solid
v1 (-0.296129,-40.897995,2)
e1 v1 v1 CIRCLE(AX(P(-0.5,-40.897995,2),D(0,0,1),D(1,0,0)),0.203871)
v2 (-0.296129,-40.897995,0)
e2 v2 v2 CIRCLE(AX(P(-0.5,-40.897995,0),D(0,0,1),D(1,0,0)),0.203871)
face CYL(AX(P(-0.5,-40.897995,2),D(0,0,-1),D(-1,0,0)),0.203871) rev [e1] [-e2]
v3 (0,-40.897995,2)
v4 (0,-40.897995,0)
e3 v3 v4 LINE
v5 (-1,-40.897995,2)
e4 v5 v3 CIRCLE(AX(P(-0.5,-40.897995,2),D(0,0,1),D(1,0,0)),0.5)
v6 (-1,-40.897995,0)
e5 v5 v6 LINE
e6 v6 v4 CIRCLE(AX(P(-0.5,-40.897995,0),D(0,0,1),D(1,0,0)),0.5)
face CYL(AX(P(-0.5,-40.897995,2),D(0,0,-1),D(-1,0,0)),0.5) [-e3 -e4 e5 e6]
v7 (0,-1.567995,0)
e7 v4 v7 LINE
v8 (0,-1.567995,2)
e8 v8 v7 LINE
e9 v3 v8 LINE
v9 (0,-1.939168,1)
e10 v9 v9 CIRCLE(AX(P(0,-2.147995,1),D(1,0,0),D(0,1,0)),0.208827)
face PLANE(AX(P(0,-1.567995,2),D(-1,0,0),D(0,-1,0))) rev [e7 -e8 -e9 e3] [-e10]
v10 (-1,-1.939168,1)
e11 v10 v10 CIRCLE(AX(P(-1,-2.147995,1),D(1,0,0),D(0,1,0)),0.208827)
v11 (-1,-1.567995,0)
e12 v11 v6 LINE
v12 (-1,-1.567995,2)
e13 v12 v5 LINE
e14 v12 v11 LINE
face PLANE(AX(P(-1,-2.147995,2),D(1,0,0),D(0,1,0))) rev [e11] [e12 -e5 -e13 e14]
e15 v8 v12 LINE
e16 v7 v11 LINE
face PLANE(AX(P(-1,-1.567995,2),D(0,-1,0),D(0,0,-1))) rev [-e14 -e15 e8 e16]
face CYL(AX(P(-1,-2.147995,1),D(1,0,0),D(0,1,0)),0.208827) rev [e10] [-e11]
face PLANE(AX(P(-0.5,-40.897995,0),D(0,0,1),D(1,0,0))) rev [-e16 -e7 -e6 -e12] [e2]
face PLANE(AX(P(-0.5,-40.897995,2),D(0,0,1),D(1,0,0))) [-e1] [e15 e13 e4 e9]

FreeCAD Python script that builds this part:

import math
import FreeCAD as App
import Part
import Sketcher

doc = App.newDocument("Part")
body = doc.addObject("PartDesign::Body", "Body")

sketch1 = doc.addObject("Sketcher::SketchObject", "Sketch")
body.addObject(sketch1)
sketch1.AttachmentSupport = (doc.XY_Plane, [""])
sketch1.MapMode = "FlatFace"
sketch1.addGeometry(Part.ArcOfCircle(Part.Circle(App.Vector(-0.5, -40.9, 0), App.Vector(0, 0, 1), 0.5), math.radians(180), math.radians(360)), False)
sketch1.addGeometry(Part.LineSegment(App.Vector(0, -40.9, 0), App.Vector(0, -1.57, 0)), False)
sketch1.addGeometry(Part.LineSegment(App.Vector(0, -1.57, 0), App.Vector(-1, -1.57, 0)), False)
sketch1.addGeometry(Part.LineSegment(App.Vector(-1, -1.57, 0), App.Vector(-1, -40.9, 0)), False)
sketch1.addGeometry(Part.Circle(App.Vector(-0.5, -40.9, 0), App.Vector(0, 0, 1), 0.2), False)
sketch1.addConstraint(Sketcher.Constraint("Tangent", 0, 2, 1, 1))
sketch1.addConstraint(Sketcher.Constraint("Coincident", 1, 2, 2, 1))
sketch1.addConstraint(Sketcher.Constraint("Coincident", 2, 2, 3, 1))
sketch1.addConstraint(Sketcher.Constraint("Tangent", 3, 2, 0, 1))
sketch1.addConstraint(Sketcher.Constraint("Vertical", 1))
sketch1.addConstraint(Sketcher.Constraint("Horizontal", 2))
sketch1.addConstraint(Sketcher.Constraint("Vertical", 3))
sketch1.addConstraint(Sketcher.Constraint("Coincident", 4, 3, 0, 3))
sketch1.addConstraint(Sketcher.Constraint("PointOnObject", 0, 2, -2))
sketch1.addConstraint(Sketcher.Constraint("Radius", 0, 0.5))
sketch1.addConstraint(Sketcher.Constraint("DistanceY", 1, 1, 1, 2, 39.33))
sketch1.addConstraint(Sketcher.Constraint("Diameter", 4, 0.407742))
sketch1.addConstraint(Sketcher.Constraint("DistanceY", 0, 3, -1, 1, 40.897995))
pad1 = doc.addObject("PartDesign::Pad", "Pad")
body.addObject(pad1)
pad1.Profile = sketch1
pad1.Length = 2

sketch2 = doc.addObject("Sketcher::SketchObject", "Sketch001")
body.addObject(sketch2)
sketch2.AttachmentSupport = (doc.YZ_Plane, [""])
sketch2.MapMode = "FlatFace"
sketch2.addGeometry(Part.Circle(App.Vector(-2.15, 1, 0), App.Vector(0, 0, 1), 0.21), False)
sketch2.addConstraint(Sketcher.Constraint("DistanceY", -1, 1, 0, 3, 1.0))
sketch2.addConstraint(Sketcher.Constraint("Diameter", 0, 0.417654))
sketch2.addConstraint(Sketcher.Constraint("DistanceX", 0, 3, -1, 1, 2.147995))
pocket1 = doc.addObject("PartDesign::Pocket", "Pocket")
body.addObject(pocket1)
pocket1.Profile = sketch2
pocket1.Type = "ThroughAll"

doc.recompute()
